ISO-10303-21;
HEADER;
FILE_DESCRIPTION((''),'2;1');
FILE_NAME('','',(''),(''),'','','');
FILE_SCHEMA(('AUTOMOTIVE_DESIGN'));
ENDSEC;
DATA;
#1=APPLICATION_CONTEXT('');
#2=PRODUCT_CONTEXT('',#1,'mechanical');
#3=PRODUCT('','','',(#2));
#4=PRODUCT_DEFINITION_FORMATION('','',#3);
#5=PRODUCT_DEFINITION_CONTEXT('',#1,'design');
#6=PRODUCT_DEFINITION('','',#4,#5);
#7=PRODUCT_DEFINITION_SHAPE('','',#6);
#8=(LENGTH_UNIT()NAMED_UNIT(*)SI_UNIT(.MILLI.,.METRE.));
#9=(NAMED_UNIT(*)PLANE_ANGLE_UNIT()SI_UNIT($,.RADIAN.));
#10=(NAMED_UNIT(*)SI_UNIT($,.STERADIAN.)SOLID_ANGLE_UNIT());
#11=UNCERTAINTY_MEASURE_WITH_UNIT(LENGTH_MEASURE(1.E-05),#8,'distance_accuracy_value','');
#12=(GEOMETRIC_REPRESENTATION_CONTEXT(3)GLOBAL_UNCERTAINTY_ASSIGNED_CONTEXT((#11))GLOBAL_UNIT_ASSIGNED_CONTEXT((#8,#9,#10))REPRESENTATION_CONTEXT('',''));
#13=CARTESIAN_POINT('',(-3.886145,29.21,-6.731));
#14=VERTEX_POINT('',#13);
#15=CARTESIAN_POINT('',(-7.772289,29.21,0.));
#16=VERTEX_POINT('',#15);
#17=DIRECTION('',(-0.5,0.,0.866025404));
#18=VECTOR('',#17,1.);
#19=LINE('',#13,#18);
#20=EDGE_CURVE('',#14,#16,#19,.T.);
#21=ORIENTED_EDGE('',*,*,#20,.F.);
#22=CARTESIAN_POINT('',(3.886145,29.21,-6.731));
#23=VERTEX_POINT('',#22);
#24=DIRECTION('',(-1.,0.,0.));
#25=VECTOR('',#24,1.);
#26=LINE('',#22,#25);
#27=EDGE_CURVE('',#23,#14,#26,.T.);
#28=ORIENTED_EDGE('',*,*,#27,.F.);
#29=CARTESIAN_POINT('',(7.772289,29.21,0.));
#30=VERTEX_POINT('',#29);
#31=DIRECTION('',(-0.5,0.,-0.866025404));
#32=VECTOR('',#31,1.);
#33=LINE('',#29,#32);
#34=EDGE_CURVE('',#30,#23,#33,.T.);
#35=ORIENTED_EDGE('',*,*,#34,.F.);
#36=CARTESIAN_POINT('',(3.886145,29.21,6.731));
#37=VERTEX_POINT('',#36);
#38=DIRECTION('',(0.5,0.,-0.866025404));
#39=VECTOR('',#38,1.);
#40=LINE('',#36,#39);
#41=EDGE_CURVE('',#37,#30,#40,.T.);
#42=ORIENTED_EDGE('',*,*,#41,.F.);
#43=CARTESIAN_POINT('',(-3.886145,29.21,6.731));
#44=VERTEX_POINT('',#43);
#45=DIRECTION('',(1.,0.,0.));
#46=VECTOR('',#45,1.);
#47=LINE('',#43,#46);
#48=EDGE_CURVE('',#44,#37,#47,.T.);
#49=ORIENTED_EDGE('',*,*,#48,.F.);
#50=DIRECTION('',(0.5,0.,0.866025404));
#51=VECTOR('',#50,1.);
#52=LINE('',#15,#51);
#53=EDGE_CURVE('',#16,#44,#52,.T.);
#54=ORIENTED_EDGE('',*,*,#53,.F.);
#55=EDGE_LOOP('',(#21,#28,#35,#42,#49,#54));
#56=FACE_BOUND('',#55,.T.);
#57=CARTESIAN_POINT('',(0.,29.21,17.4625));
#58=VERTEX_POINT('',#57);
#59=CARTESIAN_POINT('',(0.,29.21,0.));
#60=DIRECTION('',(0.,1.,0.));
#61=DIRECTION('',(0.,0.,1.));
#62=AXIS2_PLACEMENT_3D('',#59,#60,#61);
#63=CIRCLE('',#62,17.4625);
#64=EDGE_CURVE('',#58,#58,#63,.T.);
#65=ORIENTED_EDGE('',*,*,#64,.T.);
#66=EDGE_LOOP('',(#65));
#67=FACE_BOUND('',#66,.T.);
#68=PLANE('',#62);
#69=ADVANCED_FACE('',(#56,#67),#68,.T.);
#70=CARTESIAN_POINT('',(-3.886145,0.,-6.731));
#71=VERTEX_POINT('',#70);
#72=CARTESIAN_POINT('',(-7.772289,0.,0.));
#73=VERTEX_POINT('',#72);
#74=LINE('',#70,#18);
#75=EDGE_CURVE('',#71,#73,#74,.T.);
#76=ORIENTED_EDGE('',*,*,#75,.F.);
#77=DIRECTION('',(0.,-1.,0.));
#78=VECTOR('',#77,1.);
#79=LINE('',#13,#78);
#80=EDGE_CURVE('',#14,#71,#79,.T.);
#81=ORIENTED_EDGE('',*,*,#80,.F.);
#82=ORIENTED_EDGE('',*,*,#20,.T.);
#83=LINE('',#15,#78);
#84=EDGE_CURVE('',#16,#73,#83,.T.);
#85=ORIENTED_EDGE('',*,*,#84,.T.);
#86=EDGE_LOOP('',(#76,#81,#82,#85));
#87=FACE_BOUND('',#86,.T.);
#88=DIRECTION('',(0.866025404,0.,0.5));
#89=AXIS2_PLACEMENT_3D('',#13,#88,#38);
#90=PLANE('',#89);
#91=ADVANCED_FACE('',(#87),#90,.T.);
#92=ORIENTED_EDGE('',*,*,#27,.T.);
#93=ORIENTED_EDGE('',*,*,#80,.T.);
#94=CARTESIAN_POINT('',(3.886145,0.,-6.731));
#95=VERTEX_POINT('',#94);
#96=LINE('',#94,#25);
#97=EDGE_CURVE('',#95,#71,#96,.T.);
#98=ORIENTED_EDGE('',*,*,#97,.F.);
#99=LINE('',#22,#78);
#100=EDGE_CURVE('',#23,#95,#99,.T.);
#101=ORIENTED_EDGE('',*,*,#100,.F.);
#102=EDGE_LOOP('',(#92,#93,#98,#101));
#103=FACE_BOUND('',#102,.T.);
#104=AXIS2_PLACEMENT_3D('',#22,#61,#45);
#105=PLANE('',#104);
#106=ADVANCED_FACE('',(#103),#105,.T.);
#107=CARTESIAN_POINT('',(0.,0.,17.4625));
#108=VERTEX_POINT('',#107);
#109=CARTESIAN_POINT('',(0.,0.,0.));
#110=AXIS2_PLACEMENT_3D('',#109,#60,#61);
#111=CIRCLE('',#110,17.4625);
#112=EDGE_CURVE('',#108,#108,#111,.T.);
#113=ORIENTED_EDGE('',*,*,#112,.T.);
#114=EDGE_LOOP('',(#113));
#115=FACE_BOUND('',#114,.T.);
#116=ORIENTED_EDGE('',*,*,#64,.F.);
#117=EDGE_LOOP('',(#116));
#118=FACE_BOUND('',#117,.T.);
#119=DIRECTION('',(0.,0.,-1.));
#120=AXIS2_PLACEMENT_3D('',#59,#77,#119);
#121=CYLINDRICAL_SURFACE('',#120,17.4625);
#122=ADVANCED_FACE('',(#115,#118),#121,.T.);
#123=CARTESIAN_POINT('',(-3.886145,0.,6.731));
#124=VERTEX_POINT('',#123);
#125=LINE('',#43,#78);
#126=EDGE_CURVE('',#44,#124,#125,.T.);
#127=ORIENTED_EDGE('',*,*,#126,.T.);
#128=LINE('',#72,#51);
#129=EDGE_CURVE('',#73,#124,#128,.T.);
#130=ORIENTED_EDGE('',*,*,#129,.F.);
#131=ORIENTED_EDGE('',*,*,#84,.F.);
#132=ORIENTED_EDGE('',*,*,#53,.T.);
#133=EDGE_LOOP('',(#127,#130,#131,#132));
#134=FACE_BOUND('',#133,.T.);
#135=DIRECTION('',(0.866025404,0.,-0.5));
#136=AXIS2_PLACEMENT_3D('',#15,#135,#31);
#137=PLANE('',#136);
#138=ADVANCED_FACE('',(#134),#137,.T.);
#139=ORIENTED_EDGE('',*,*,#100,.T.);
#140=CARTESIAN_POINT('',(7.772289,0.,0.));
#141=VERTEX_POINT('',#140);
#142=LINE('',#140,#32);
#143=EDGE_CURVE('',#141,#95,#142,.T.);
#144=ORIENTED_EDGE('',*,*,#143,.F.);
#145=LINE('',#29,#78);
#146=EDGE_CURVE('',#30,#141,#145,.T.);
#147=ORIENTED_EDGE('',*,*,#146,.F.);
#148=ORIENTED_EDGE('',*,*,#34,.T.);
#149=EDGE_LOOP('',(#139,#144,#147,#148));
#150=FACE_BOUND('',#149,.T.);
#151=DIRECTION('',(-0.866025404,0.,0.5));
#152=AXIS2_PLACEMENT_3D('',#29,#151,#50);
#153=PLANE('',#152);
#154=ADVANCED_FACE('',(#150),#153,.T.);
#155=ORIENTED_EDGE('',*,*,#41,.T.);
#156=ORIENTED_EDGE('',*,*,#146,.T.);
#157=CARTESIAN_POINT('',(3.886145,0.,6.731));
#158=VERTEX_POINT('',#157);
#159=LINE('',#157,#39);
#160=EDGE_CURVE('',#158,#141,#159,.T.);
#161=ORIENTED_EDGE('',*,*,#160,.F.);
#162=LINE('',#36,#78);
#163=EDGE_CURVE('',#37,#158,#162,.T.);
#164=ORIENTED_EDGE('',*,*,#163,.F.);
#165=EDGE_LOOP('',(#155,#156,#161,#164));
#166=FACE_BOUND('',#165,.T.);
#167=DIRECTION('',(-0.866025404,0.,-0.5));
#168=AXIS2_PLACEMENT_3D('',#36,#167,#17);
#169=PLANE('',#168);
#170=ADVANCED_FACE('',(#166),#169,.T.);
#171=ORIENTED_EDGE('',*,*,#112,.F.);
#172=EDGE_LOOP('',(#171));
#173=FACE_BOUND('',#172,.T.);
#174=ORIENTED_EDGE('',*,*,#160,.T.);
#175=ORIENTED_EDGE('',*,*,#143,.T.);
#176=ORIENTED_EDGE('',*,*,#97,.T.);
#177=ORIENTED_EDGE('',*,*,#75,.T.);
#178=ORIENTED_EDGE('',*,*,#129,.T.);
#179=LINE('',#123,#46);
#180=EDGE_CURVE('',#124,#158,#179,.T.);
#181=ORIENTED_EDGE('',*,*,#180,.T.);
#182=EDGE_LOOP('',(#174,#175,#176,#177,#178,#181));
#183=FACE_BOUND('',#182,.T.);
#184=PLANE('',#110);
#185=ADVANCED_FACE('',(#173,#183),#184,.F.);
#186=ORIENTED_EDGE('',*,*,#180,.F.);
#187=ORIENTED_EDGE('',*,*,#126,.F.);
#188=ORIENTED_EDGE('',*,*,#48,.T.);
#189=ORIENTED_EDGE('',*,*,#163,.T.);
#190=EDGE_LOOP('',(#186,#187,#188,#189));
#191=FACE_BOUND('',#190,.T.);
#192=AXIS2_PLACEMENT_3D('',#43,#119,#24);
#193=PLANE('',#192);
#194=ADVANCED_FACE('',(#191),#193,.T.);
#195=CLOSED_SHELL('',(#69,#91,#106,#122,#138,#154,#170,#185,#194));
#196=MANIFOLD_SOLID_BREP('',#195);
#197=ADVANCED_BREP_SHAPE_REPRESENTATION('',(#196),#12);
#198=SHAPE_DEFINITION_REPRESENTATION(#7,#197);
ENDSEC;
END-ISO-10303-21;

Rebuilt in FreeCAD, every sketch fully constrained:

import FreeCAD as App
import Part
import Sketcher
Q = App.Units.Quantity


def add_polygon(sketch, points):
    """Adds a closed chain of lines whose ends are joined by coincident constraints."""
    first, n = sketch.GeometryCount, len(points)
    for a, b in zip(points, points[1:] + points[:1]):
        sketch.addGeometry(Part.LineSegment(App.Vector(*a, 0), App.Vector(*b, 0)), False)
    for i in range(n):
        sketch.addConstraint(Sketcher.Constraint("Coincident", first + i, 2, first + (i + 1) % n, 1))

doc = App.newDocument("Part")
params = doc.addObject("Spreadsheet::Sheet", "Params")
for row, (alias, value) in enumerate([
    ("sketch1_diameter", "1.375 in"),
    ("pad1_length", "1.15 in"),
], start=1):
    params.set(f"A{row}", alias)
    params.set(f"B{row}", "=" + value)
    params.setAlias(f"B{row}", alias)

body = doc.addObject("PartDesign::Body", "Body")

sketch1 = body.newObject("Sketcher::SketchObject", "Sketch")
sketch1.AttachmentSupport = (doc.getObject("XZ_Plane"), [""])
sketch1.MapMode = "FlatFace"
sketch1.addGeometry(Part.Circle(App.Vector(0, 0, 0), App.Vector(0, 0, 1), 17), False)
add_polygon(sketch1, [(4, -7), (8, 0), (4, 7), (-4, 7), (-8, 0), (-4, -7)])
sketch1.addConstraint(Sketcher.Constraint("Horizontal", 3))
sketch1.addConstraint(Sketcher.Constraint("Horizontal", 6))
sketch1.addConstraint(Sketcher.Constraint("Coincident", 0, 3, -1, 1))
sketch1.addConstraint(Sketcher.Constraint("Symmetric", 1, 2, 4, 2, -1, 1))
sketch1.addConstraint(Sketcher.Constraint("Symmetric", 2, 2, 5, 2, -1, 1))
sketch1.addConstraint(Sketcher.Constraint("PointOnObject", 1, 2, -1))
sketch1.addConstraint(Sketcher.Constraint("Parallel", 1, 4))
sketch1.addConstraint(Sketcher.Constraint("Vertical", 3, 2, 5, 2))
sketch1.addConstraint(Sketcher.Constraint("Diameter", 0, Q("1.375 in")))
sketch1.addConstraint(Sketcher.Constraint("Angle", 1, Q("60 deg")))
sketch1.addConstraint(Sketcher.Constraint("DistanceY", 5, 2, 3, 2, Q("0.53 in")))
sketch1.addConstraint(Sketcher.Constraint("DistanceX", 3, 2, 3, 1, 7.772289))
sketch1.setExpression("Constraints[14]", "Params.sketch1_diameter")
pad1 = body.newObject("PartDesign::Pad", "Pad")
pad1.Profile = sketch1
pad1.setExpression("Length", "Params.pad1_length")
pad1.Reversed = True

doc.recompute()
